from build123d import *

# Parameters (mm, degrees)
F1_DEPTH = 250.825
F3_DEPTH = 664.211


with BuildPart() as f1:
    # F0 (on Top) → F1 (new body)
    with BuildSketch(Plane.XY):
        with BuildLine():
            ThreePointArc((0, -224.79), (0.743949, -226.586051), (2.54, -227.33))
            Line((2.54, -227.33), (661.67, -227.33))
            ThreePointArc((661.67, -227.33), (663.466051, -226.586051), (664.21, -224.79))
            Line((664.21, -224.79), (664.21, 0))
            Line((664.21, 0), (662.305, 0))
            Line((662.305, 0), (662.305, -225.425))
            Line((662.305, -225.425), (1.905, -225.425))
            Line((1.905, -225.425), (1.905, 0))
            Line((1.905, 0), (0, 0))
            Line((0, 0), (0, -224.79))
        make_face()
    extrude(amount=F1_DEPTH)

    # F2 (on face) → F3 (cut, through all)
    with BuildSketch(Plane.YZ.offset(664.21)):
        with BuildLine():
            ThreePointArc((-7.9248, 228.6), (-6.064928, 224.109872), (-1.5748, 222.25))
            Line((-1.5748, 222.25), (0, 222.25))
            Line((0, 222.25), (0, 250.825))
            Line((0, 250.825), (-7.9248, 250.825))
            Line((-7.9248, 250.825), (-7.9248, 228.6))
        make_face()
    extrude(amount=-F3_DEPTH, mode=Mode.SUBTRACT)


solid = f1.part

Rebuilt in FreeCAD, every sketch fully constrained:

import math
import FreeCAD as App
import Part
import Sketcher
from FreeCAD import Vector
Q = App.Units.Quantity

doc = App.newDocument("Part")
body = doc.addObject("PartDesign::Body", "Body")

sketch1 = doc.addObject("Sketcher::SketchObject", "Sketch")
body.addObject(sketch1)
sketch1.AttachmentSupport = (doc.XY_Plane, [""])
sketch1.MapMode = "FlatFace"
sketch1.addGeometry([
    Part.ArcOfCircle(Part.Circle(Vector(2.540001, -224.789999, 0), Vector(0, 0, 1), 2.540001), math.radians(-179.999983), math.radians(-90.000017)),
    Part.LineSegment(Vector(2.54, -227.33, 0), Vector(661.67, -227.33, 0)),
    Part.ArcOfCircle(Part.Circle(Vector(661.669999, -224.789999, 0), Vector(0, 0, 1), 2.540001), math.radians(-89.999983), math.radians(-0.000017)),
    Part.LineSegment(Vector(664.21, -224.79, 0), Vector(664.21, 0, 0)),
    Part.LineSegment(Vector(664.21, 0, 0), Vector(662.305, 0, 0)),
    Part.LineSegment(Vector(662.305, 0, 0), Vector(662.305, -225.425, 0)),
    Part.LineSegment(Vector(662.305, -225.425, 0), Vector(1.905, -225.425, 0)),
    Part.LineSegment(Vector(1.905, -225.425, 0), Vector(1.905, 0, 0)),
    Part.LineSegment(Vector(1.905, 0, 0), Vector(0, 0, 0)),
    Part.LineSegment(Vector(0, 0, 0), Vector(0, -224.79, 0)),
], False)
sketch1.addConstraint([
    Sketcher.Constraint("Tangent", 0, 2, 1, 1),
    Sketcher.Constraint("Tangent", 1, 2, 2, 1),
    Sketcher.Constraint("Tangent", 2, 2, 3, 1),
    Sketcher.Constraint("Coincident", 3, 2, 4, 1),
    Sketcher.Constraint("Coincident", 4, 2, 5, 1),
    Sketcher.Constraint("Coincident", 5, 2, 6, 1),
    Sketcher.Constraint("Coincident", 6, 2, 7, 1),
    Sketcher.Constraint("Coincident", 7, 2, 8, 1),
    Sketcher.Constraint("Coincident", 8, 2, 9, 1),
    Sketcher.Constraint("Tangent", 9, 2, 0, 1),
    Sketcher.Constraint("Horizontal", 1),
    Sketcher.Constraint("Vertical", 3),
    Sketcher.Constraint("Horizontal", 4),
    Sketcher.Constraint("Vertical", 5),
    Sketcher.Constraint("Horizontal", 6),
    Sketcher.Constraint("Vertical", 7),
    Sketcher.Constraint("Horizontal", 8),
    Sketcher.Constraint("Vertical", 9),
    Sketcher.Constraint("Coincident", 8, 2, -1, 1),
    Sketcher.Constraint("Equal", 0, 2),
    Sketcher.Constraint("PointOnObject", 3, 2, -1),
    Sketcher.Constraint("Equal", 4, 8),
    Sketcher.Constraint("Radius", 0, Q("0.1 in")),
    Sketcher.Constraint("DistanceX", 6, 2, 6, 1, Q("26 in")),
    Sketcher.Constraint("DistanceX", 1, 1, 1, 2, Q("25.95 in")),
    Sketcher.Constraint("DistanceY", 3, 1, 3, 2, Q("8.85 in")),
    Sketcher.Constraint("DistanceY", 5, 2, 5, 1, Q("8.875 in")),
])
pad1 = doc.addObject("PartDesign::Pad", "Pad")
body.addObject(pad1)
pad1.Profile = sketch1
pad1.Length = Q("9.875 in")

sketch2 = doc.addObject("Sketcher::SketchObject", "Sketch001")
body.addObject(sketch2)
sketch2.AttachmentSupport = (doc.YZ_Plane, [""])
sketch2.MapMode = "FlatFace"
sketch2.AttachmentOffset = App.Placement(Vector(0, 0, 26.15 * 25.4), App.Rotation())
sketch2.addGeometry([
    Part.ArcOfCircle(Part.Circle(Vector(-1.5748, 228.6, 0), Vector(0, 0, 1), 6.35), math.radians(-179.999998), math.radians(-90.000002)),
    Part.LineSegment(Vector(-1.5748, 222.25, 0), Vector(0, 222.25, 0)),
    Part.LineSegment(Vector(0, 222.25, 0), Vector(0, 250.825, 0)),
    Part.LineSegment(Vector(0, 250.825, 0), Vector(-7.9248, 250.825, 0)),
    Part.LineSegment(Vector(-7.9248, 250.825, 0), Vector(-7.9248, 228.6, 0)),
], False)
sketch2.addConstraint([
    Sketcher.Constraint("Tangent", 0, 2, 1, 1),
    Sketcher.Constraint("Coincident", 1, 2, 2, 1),
    Sketcher.Constraint("Coincident", 2, 2, 3, 1),
    Sketcher.Constraint("Coincident", 3, 2, 4, 1),
    Sketcher.Constraint("Tangent", 4, 2, 0, 1),
    Sketcher.Constraint("Horizontal", 1),
    Sketcher.Constraint("Vertical", 2),
    Sketcher.Constraint("Horizontal", 3),
    Sketcher.Constraint("Vertical", 4),
    Sketcher.Constraint("PointOnObject", 1, 2, -2),
    Sketcher.Constraint("Radius", 0, Q("0.25 in")),
    Sketcher.Constraint("DistanceY", -1, 1, 0, 3, Q("9 in")),
    Sketcher.Constraint("DistanceX", 1, 1, 1, 2, Q("0.062 in")),
    Sketcher.Constraint("DistanceY", 2, 1, 2, 2, Q("1.125 in")),
])
pocket1 = doc.addObject("PartDesign::Pocket", "Pocket")
body.addObject(pocket1)
pocket1.Profile = sketch2
pocket1.Type = "ThroughAll"

doc.recompute()
